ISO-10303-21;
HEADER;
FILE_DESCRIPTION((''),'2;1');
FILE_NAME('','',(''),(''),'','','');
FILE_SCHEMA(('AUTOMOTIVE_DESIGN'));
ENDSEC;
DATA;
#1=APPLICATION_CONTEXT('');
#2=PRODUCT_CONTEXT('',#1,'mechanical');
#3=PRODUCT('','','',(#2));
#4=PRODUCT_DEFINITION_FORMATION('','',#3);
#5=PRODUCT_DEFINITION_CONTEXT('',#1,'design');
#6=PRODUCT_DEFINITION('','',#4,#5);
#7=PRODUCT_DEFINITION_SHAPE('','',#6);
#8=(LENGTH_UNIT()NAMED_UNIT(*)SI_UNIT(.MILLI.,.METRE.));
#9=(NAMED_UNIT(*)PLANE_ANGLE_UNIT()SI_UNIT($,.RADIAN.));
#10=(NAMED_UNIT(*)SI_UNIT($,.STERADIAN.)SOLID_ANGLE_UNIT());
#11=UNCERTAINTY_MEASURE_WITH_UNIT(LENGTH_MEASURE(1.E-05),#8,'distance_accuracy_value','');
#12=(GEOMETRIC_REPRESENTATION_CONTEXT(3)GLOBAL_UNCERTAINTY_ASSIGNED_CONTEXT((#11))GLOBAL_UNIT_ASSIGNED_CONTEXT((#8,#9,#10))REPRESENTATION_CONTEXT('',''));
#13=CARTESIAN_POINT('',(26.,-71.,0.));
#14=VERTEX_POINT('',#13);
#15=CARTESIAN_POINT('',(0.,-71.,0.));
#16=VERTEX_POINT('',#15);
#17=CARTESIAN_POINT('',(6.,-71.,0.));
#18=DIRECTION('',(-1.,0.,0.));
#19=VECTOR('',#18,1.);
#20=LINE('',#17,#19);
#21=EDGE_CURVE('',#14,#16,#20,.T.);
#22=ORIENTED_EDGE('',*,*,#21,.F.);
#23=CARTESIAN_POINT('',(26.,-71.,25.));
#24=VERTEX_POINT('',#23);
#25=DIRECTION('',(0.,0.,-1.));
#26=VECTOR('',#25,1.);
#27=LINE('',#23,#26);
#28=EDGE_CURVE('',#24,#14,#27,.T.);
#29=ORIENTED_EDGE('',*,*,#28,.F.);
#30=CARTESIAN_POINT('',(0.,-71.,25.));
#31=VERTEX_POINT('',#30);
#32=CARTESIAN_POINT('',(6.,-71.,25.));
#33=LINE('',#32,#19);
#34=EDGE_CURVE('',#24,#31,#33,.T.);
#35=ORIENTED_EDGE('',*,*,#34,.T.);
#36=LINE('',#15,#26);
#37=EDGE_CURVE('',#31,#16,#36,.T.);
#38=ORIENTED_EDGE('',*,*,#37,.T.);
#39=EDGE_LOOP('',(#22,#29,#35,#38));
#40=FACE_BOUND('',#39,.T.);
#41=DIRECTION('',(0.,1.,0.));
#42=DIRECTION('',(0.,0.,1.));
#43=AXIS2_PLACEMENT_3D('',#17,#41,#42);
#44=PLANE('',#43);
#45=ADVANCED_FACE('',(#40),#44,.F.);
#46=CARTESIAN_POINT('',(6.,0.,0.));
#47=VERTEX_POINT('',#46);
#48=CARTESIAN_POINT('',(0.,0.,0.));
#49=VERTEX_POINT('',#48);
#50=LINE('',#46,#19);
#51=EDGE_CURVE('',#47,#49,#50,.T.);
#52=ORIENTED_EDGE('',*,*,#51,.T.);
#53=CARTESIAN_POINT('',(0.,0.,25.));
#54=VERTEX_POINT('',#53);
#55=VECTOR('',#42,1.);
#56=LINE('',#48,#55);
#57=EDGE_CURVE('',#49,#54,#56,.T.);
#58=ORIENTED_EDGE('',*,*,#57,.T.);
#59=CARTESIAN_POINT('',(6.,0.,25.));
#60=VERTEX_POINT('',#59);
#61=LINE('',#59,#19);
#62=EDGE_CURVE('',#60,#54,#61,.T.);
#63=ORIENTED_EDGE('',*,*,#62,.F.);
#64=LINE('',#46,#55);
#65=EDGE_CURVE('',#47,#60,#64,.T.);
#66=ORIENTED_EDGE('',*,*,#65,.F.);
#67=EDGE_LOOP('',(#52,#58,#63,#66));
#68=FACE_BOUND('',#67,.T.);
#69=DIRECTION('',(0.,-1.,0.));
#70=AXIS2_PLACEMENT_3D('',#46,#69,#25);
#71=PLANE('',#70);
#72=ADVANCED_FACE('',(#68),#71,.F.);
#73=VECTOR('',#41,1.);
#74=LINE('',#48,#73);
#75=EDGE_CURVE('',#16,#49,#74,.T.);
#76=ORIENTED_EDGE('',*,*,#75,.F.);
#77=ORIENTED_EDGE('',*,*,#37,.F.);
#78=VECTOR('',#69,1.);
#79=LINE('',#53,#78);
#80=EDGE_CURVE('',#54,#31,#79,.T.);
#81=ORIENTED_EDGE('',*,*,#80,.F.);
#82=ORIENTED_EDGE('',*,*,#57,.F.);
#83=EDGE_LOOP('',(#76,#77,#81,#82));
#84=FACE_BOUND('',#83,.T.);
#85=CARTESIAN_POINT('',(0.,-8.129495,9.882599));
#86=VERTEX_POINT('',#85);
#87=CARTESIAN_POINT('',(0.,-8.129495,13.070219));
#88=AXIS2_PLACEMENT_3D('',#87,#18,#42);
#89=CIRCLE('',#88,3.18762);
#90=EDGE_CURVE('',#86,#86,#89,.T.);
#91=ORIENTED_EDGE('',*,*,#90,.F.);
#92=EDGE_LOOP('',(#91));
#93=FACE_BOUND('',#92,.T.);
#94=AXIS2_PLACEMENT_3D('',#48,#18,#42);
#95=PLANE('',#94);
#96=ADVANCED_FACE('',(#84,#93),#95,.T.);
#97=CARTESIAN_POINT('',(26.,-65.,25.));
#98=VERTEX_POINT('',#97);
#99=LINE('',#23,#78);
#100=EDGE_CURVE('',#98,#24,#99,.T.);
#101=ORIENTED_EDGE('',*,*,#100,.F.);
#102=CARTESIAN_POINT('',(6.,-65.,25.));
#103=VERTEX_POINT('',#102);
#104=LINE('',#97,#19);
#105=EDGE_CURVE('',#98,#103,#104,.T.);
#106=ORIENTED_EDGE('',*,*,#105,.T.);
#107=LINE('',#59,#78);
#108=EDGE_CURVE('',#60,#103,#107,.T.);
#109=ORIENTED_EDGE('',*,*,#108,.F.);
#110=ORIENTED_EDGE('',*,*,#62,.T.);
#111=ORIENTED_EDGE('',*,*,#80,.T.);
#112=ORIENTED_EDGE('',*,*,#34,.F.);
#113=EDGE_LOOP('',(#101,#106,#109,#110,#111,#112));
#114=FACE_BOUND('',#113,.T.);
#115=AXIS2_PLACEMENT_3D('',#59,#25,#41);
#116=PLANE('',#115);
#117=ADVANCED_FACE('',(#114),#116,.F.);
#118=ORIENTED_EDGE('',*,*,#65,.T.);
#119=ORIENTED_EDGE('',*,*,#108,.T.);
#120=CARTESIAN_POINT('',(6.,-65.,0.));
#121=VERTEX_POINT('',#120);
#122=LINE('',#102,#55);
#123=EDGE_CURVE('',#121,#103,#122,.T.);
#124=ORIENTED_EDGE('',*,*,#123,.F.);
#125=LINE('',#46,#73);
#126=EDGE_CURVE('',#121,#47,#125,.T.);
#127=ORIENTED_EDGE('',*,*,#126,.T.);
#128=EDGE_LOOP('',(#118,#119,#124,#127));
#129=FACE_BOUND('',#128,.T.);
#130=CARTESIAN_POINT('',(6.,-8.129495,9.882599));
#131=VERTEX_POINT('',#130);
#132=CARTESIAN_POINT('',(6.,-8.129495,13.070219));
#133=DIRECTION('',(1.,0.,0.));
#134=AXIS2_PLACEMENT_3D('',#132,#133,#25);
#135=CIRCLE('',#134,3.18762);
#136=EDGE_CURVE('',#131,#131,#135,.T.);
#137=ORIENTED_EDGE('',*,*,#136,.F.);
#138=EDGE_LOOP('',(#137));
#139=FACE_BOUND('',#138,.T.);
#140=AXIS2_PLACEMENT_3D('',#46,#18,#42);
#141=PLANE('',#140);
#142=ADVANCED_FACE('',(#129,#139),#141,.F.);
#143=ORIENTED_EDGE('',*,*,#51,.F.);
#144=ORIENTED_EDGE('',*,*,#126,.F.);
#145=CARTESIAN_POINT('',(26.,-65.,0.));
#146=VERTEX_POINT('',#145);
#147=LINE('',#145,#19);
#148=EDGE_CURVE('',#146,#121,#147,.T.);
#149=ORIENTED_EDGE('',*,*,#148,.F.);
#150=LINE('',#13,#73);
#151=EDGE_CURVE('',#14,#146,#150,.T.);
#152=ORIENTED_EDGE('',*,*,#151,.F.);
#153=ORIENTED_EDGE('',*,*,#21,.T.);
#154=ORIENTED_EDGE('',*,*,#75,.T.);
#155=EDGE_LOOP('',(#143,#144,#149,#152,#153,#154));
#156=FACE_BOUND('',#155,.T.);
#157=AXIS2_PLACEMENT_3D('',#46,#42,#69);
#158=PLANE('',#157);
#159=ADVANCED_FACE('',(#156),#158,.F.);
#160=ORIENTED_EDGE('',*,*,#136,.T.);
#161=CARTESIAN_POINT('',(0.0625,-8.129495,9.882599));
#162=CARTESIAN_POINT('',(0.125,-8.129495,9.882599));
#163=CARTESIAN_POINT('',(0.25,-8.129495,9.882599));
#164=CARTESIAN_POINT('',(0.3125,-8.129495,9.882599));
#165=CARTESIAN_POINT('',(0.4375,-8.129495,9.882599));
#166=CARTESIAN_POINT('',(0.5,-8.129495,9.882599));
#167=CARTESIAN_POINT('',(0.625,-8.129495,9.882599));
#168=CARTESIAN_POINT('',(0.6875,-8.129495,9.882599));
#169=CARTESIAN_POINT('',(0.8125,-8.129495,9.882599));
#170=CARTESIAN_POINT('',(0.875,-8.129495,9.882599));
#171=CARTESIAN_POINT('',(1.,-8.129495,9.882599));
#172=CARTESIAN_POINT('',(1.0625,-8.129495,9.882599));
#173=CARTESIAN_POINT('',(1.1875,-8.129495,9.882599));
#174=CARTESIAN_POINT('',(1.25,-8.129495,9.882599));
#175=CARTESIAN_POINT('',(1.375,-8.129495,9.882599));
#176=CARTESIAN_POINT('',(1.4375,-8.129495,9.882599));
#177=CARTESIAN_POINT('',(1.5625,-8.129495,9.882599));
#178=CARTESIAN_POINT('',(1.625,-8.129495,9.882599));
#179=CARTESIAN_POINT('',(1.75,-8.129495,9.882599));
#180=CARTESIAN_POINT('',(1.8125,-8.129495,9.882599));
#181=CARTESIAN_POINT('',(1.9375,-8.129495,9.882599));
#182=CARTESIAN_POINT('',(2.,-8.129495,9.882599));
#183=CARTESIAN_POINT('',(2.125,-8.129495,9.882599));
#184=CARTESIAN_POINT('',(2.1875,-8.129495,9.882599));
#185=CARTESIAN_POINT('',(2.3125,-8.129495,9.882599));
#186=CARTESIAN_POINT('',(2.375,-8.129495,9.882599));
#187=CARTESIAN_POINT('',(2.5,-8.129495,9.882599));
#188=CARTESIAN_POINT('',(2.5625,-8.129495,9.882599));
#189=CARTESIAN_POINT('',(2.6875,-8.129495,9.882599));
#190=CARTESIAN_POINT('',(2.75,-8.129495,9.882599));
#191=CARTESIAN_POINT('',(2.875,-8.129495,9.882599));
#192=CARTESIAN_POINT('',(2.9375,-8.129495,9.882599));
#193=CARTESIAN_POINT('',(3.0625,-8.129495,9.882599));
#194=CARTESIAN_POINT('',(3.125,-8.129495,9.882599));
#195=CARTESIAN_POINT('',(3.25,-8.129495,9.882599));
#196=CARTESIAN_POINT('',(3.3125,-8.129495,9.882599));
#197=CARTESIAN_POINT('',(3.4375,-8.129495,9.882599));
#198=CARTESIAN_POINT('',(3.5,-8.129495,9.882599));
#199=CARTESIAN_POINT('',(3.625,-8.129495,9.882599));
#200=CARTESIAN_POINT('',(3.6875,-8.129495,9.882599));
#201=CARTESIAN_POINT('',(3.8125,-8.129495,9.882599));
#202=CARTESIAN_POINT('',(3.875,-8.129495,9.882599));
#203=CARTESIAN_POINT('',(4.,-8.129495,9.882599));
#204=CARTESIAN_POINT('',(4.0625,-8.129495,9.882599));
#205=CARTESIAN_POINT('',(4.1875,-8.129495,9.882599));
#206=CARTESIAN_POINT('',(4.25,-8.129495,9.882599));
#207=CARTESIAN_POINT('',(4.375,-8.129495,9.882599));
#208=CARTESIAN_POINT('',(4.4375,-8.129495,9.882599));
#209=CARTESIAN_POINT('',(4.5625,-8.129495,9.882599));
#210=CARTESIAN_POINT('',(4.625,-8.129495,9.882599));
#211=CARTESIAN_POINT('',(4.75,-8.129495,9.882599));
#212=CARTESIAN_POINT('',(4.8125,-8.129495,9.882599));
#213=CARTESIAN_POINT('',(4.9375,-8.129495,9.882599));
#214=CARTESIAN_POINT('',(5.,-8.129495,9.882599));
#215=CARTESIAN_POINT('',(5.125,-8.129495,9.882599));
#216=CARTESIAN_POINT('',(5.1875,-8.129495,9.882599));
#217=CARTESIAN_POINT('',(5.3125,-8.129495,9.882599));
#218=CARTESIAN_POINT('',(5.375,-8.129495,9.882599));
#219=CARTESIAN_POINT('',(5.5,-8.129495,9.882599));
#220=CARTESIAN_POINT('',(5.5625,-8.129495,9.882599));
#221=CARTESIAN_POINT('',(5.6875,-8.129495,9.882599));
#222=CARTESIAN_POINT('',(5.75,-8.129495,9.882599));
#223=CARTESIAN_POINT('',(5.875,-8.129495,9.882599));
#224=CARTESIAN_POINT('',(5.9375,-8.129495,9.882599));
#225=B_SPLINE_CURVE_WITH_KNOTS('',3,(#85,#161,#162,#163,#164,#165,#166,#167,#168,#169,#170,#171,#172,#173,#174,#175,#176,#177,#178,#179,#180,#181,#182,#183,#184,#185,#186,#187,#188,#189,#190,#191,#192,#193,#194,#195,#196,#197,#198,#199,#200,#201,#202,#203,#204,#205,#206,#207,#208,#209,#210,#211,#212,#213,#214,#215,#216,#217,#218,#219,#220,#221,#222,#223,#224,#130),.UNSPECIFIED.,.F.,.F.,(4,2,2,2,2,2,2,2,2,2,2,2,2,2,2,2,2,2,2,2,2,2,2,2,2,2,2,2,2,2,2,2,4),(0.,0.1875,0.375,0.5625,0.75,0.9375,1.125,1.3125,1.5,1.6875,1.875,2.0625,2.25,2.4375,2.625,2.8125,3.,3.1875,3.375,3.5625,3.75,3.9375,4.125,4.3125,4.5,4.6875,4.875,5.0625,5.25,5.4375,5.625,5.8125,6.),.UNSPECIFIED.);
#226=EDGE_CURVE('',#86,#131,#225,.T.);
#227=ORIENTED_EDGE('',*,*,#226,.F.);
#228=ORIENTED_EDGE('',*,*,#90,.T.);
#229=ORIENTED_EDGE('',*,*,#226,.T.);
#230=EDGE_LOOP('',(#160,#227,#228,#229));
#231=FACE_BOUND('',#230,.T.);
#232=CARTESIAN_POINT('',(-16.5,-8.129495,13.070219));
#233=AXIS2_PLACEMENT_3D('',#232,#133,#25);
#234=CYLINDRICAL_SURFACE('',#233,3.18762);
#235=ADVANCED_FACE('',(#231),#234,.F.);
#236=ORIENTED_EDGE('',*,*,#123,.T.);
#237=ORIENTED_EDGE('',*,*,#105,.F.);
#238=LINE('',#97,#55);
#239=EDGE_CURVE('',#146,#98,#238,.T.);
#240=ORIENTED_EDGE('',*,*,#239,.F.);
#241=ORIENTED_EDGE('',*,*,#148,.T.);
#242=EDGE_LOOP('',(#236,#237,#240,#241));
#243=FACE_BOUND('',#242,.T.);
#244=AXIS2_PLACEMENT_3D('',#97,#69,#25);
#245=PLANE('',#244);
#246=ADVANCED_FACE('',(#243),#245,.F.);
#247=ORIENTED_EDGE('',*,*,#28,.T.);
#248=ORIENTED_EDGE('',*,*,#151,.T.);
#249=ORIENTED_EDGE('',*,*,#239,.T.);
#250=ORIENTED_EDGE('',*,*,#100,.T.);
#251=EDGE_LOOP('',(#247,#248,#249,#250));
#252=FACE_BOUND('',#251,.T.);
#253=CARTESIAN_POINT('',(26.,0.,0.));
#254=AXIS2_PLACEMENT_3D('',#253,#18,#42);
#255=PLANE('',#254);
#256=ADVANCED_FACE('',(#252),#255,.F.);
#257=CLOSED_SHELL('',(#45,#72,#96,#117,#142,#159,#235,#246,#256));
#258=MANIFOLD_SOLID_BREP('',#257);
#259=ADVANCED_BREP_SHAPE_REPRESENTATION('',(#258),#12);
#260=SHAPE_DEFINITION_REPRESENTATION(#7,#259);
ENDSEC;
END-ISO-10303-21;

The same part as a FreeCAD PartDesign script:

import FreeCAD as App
import Part
import Sketcher

V = App.Vector
Q = App.Units.Quantity

doc = App.newDocument("Part")
body = doc.addObject("PartDesign::Body", "Body")

# Sketch on YZ plane
sketch1 = doc.addObject("Sketcher::SketchObject", "Sketch")
body.addObject(sketch1)
sketch1.AttachmentSupport = (doc.YZ_Plane, [""])
sketch1.MapMode = "FlatFace"
sketch1.addGeometry([
    Part.LineSegment(V(0, 25, 0), V(-71, 25, 0)),
    Part.LineSegment(V(-71, 25, 0), V(-71, 0, 0)),
    Part.LineSegment(V(-71, 0, 0), V(0, 0, 0)),
    Part.LineSegment(V(0, 0, 0), V(0, 25, 0)),
], False)
sketch1.addConstraint([
    Sketcher.Constraint("Coincident", 0, 2, 1, 1),
    Sketcher.Constraint("Coincident", 1, 2, 2, 1),
    Sketcher.Constraint("Coincident", 2, 2, 3, 1),
    Sketcher.Constraint("Coincident", 3, 2, 0, 1),
    Sketcher.Constraint("Horizontal", 0),
    Sketcher.Constraint("Vertical", 1),
    Sketcher.Constraint("Horizontal", 2),
    Sketcher.Constraint("Vertical", 3),
    Sketcher.Constraint("Coincident", 2, 2, -1, 1),
    Sketcher.Constraint("DistanceX", 0, 2, 0, 1, Q("71 mm")),
    Sketcher.Constraint("DistanceY", 1, 2, 1, 1, Q("25 mm")),
])
pad1 = doc.addObject("PartDesign::Pad", "Pad")
body.addObject(pad1)
pad1.Profile = sketch1
pad1.Length = 6

# Sketch on YZ plane
sketch2 = doc.addObject("Sketcher::SketchObject", "Sketch001")
body.addObject(sketch2)
sketch2.AttachmentSupport = (doc.YZ_Plane, [""])
sketch2.MapMode = "FlatFace"
sketch2.AttachmentOffset = App.Placement(V(0, 0, 6), App.Rotation())
sketch2.addGeometry([
    Part.LineSegment(V(-65, 25, 0), V(-71, 25, 0)),
    Part.LineSegment(V(-71, 25, 0), V(-71, 0, 0)),
    Part.LineSegment(V(-71, 0, 0), V(-65, 0, 0)),
    Part.LineSegment(V(-65, 0, 0), V(-65, 25, 0)),
], False)
sketch2.addConstraint([
    Sketcher.Constraint("Coincident", 0, 2, 1, 1),
    Sketcher.Constraint("Coincident", 1, 2, 2, 1),
    Sketcher.Constraint("Coincident", 2, 2, 3, 1),
    Sketcher.Constraint("Coincident", 3, 2, 0, 1),
    Sketcher.Constraint("Horizontal", 0),
    Sketcher.Constraint("Vertical", 1),
    Sketcher.Constraint("Horizontal", 2),
    Sketcher.Constraint("Vertical", 3),
    Sketcher.Constraint("PointOnObject", 1, 2, -1),
    Sketcher.Constraint("DistanceX", 0, 2, 0, 1, Q("6 mm")),
    Sketcher.Constraint("DistanceY", 1, 2, 1, 1, Q("25 mm")),
    Sketcher.Constraint("DistanceX", 0, 2, -1, 1, Q("71 mm")),
])
pad2 = doc.addObject("PartDesign::Pad", "Pad001")
body.addObject(pad2)
pad2.Profile = sketch2
pad2.Length = 20

# Sketch on YZ plane
sketch3 = doc.addObject("Sketcher::SketchObject", "Sketch002")
body.addObject(sketch3)
sketch3.AttachmentSupport = (doc.YZ_Plane, [""])
sketch3.MapMode = "FlatFace"
sketch3.AttachmentOffset = App.Placement(V(0, 0, 6), App.Rotation())
sketch3.addGeometry(Part.Circle(V(-8.1, 13.1, 0), V(0, 0, 1), 3.2), False)
sketch3.addConstraint([
    Sketcher.Constraint("Diameter", 0, Q("6.375241 mm")),
    Sketcher.Constraint("DistanceY", -1, 1, 0, 3, Q("13.070219 mm")),
    Sketcher.Constraint("DistanceX", 0, 3, -1, 1, Q("8.129495 mm")),
])
pocket1 = doc.addObject("PartDesign::Pocket", "Pocket")
body.addObject(pocket1)
pocket1.Profile = sketch3
pocket1.Length = 22.5

doc.recompute()
